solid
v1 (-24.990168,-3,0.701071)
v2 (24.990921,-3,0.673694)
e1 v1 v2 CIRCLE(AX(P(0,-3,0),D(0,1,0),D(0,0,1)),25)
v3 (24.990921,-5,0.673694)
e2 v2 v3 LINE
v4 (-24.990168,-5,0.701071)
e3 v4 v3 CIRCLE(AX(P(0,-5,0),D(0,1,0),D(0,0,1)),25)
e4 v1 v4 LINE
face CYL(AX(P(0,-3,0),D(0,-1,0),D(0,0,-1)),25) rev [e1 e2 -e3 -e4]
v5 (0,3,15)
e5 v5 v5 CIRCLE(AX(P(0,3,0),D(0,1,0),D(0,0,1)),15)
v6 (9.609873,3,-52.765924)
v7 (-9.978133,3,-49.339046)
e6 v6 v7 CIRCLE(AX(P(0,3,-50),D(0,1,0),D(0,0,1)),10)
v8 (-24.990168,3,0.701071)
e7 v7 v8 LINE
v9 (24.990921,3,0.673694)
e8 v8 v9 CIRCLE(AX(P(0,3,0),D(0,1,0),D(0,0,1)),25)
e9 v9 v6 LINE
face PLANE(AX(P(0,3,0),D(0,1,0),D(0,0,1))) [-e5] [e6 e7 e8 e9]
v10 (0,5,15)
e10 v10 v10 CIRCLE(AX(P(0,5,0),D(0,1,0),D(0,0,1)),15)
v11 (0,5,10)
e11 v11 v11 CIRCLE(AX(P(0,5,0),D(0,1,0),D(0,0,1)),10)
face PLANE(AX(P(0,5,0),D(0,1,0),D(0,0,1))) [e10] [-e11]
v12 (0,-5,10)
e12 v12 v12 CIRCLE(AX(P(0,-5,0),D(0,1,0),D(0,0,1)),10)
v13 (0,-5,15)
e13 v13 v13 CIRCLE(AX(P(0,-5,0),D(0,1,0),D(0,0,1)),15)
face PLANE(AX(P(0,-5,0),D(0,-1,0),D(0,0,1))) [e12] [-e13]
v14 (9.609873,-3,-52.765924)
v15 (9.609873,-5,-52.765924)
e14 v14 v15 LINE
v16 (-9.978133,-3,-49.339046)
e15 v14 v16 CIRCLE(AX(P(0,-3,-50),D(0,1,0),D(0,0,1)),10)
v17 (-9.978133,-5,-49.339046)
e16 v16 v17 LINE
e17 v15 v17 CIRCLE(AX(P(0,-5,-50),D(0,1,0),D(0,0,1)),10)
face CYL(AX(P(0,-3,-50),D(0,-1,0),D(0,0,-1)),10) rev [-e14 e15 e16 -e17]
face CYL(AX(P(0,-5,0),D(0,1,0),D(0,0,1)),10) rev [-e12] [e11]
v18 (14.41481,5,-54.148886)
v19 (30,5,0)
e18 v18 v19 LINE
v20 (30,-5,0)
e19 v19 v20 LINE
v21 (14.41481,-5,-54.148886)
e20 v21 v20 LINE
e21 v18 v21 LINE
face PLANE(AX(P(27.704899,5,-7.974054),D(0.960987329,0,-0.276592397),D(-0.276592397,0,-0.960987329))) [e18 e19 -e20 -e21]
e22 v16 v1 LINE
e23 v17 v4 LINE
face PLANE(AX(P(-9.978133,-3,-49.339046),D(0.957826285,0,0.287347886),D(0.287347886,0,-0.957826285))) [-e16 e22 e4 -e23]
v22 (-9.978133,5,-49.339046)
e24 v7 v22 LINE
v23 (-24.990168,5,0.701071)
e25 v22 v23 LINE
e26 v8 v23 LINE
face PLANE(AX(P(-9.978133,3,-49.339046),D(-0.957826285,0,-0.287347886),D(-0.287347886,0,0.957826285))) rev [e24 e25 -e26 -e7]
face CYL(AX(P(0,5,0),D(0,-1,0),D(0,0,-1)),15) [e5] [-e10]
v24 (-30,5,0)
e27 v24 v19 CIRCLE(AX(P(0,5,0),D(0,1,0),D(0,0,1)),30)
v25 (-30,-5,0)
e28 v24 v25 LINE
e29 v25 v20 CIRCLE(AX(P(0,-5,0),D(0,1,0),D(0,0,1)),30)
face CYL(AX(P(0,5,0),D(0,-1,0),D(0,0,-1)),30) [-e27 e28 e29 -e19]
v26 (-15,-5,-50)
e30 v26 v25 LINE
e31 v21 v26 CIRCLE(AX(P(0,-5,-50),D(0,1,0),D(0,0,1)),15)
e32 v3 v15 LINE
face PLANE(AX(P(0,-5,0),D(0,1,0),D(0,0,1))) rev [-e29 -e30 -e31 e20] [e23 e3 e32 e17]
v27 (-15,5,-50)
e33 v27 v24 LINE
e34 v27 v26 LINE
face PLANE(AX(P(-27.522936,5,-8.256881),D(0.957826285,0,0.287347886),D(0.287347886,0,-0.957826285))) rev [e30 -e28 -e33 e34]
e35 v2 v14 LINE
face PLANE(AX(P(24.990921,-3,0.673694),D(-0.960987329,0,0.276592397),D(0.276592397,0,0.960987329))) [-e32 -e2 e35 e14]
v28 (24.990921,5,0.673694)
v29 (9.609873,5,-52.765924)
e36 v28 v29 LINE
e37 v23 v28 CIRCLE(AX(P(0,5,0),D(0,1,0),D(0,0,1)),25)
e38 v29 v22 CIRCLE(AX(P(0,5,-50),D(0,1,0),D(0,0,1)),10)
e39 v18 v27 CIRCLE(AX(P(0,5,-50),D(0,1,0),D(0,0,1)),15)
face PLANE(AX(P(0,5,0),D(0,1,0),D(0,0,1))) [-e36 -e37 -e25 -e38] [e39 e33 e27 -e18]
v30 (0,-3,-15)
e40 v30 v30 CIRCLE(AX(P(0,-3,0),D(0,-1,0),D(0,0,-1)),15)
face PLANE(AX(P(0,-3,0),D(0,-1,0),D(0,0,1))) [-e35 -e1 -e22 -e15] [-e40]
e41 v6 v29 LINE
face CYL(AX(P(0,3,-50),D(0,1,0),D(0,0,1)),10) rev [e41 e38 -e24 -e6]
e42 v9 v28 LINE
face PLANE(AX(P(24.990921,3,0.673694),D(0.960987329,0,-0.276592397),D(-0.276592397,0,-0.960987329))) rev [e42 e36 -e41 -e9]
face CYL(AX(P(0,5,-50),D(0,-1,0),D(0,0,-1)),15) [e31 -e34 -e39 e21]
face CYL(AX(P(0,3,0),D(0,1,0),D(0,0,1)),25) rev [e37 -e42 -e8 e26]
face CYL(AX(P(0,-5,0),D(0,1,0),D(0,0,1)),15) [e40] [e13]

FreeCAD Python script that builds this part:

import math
import FreeCAD as App
import Part
import Sketcher

doc = App.newDocument("Part")
body = doc.addObject("PartDesign::Body", "Body")

# Sketch on XZ plane
sketch1 = body.newObject("Sketcher::SketchObject", "Sketch")
sketch1.AttachmentSupport = (doc.getObject("XZ_Plane"), [""])
sketch1.MapMode = "FlatFace"
sketch1.addGeometry(Part.ArcOfCircle(Part.Circle(App.Vector(0, -50, 0), App.Vector(0, 0, 1), 15), math.radians(180), math.radians(344)), False)
sketch1.addGeometry(Part.LineSegment(App.Vector(-15, -50, 0), App.Vector(-30, 0, 0)), False)
sketch1.addGeometry(Part.ArcOfCircle(Part.Circle(App.Vector(0, 0, 0), App.Vector(0, 0, 1), 30), math.radians(0), math.radians(180)), False)
sketch1.addGeometry(Part.LineSegment(App.Vector(30, 0, 0), App.Vector(14, -54, 0)), False)
sketch1.addConstraint(Sketcher.Constraint("Coincident", 0, 1, 1, 1))
sketch1.addConstraint(Sketcher.Constraint("Coincident", 1, 2, 2, 2))
sketch1.addConstraint(Sketcher.Constraint("Coincident", 2, 1, 3, 1))
sketch1.addConstraint(Sketcher.Constraint("Tangent", 3, 2, 0, 2))
sketch1.addConstraint(Sketcher.Constraint("Coincident", 2, 3, -1, 1))
sketch1.addConstraint(Sketcher.Constraint("PointOnObject", 0, 3, -2))
sketch1.addConstraint(Sketcher.Constraint("PointOnObject", 1, 2, -1))
sketch1.addConstraint(Sketcher.Constraint("PointOnObject", 2, 1, -1))
sketch1.addConstraint(Sketcher.Constraint("Radius", 0, 15.0))
sketch1.addConstraint(Sketcher.Constraint("Radius", 2, 30.0))
sketch1.addConstraint(Sketcher.Constraint("DistanceY", 0, 3, -1, 1, 50.0))
sketch1.addConstraint(Sketcher.Constraint("DistanceY", 0, 1, -1, 1, 50.0))
pad1 = body.newObject("PartDesign::Pad", "Pad")
pad1.Profile = sketch1
pad1.Length = 10
pad1.Midplane = True

# Sketch on XZ plane
sketch2 = body.newObject("Sketcher::SketchObject", "Sketch001")
sketch2.AttachmentSupport = (doc.getObject("XZ_Plane"), [""])
sketch2.MapMode = "FlatFace"
sketch2.AttachmentOffset = App.Placement(App.Vector(0, 0, -5), App.Rotation())
sketch2.addGeometry(Part.LineSegment(App.Vector(25, 1, 0), App.Vector(10, -53, 0)), False)
sketch2.addGeometry(Part.ArcOfCircle(Part.Circle(App.Vector(0, -50, 0), App.Vector(0, 0, 1), 10), math.radians(176), math.radians(344)), False)
sketch2.addGeometry(Part.LineSegment(App.Vector(-10, -49, 0), App.Vector(-25, 1, 0)), False)
sketch2.addGeometry(Part.ArcOfCircle(Part.Circle(App.Vector(0, 0, 0), App.Vector(0, 0, 1), 25), math.radians(2), math.radians(178)), False)
sketch2.addConstraint(Sketcher.Constraint("Tangent", 0, 2, 1, 2))
sketch2.addConstraint(Sketcher.Constraint("Coincident", 1, 1, 2, 1))
sketch2.addConstraint(Sketcher.Constraint("Coincident", 2, 2, 3, 2))
sketch2.addConstraint(Sketcher.Constraint("Coincident", 3, 1, 0, 1))
sketch2.addConstraint(Sketcher.Constraint("Coincident", 3, 3, -1, 1))
sketch2.addConstraint(Sketcher.Constraint("PointOnObject", 1, 3, -2))
sketch2.addConstraint(Sketcher.Constraint("Radius", 1, 10.0))
sketch2.addConstraint(Sketcher.Constraint("Radius", 3, 25.0))
sketch2.addConstraint(Sketcher.Constraint("DistanceY", 1, 3, -1, 1, 50.0))
sketch2.addConstraint(Sketcher.Constraint("DistanceX", 2, 2, -1, 1, 24.990168))
sketch2.addConstraint(Sketcher.Constraint("DistanceX", -1, 1, 3, 1, 24.990921))
sketch2.addConstraint(Sketcher.Constraint("DistanceY", 0, 2, 1, 1, 3.426878))
pocket1 = body.newObject("PartDesign::Pocket", "Pocket")
pocket1.Profile = sketch2
pocket1.Length = 2
pocket1.Reversed = True
doc.recompute()

mirrored = body.newObject("PartDesign::Mirrored", "Mirrored")
mirrored.Originals = [pocket1]
mirrored.MirrorPlane = (doc.getObject("XZ_Plane"), [""])
body.Tip = mirrored

# Sketch on XZ plane
sketch3 = body.newObject("Sketcher::SketchObject", "Sketch002")
sketch3.AttachmentSupport = (doc.getObject("XZ_Plane"), [""])
sketch3.MapMode = "FlatFace"
sketch3.AttachmentOffset = App.Placement(App.Vector(0, 0, -3), App.Rotation())
sketch3.addGeometry(Part.Circle(App.Vector(0, 0, 0), App.Vector(0, 0, 1), 10), False)
sketch3.addConstraint(Sketcher.Constraint("Coincident", 0, 3, -1, 1))
sketch3.addConstraint(Sketcher.Constraint("Diameter", 0, 20.0))
pocket2 = body.newObject("PartDesign::Pocket", "Pocket001")
pocket2.Profile = sketch3
pocket2.Type = "ThroughAll"
pocket2.Reversed = True

# Sketch on XZ plane
sketch4 = body.newObject("Sketcher::SketchObject", "Sketch003")
sketch4.AttachmentSupport = (doc.getObject("XZ_Plane"), [""])
sketch4.MapMode = "FlatFace"
sketch4.AttachmentOffset = App.Placement(App.Vector(0, 0, -3), App.Rotation())
sketch4.addGeometry(Part.Circle(App.Vector(0, 0, 0), App.Vector(0, 0, 1), 15), False)
sketch4.addGeometry(Part.Circle(App.Vector(0, 0, 0), App.Vector(0, 0, 1), 10), False)
sketch4.addConstraint(Sketcher.Constraint("Coincident", 0, 3, -1, 1))
sketch4.addConstraint(Sketcher.Constraint("Coincident", 1, 3, -1, 1))
sketch4.addConstraint(Sketcher.Constraint("Diameter", 0, 30.0))
sketch4.addConstraint(Sketcher.Constraint("Diameter", 1, 20.0))
pad2 = body.newObject("PartDesign::Pad", "Pad001")
pad2.Profile = sketch4
pad2.Length = 2
pad2.Reversed = True
doc.recompute()

mirrored2 = body.newObject("PartDesign::Mirrored", "Mirrored001")
mirrored2.Originals = [pad2]
mirrored2.MirrorPlane = (doc.getObject("XZ_Plane"), [""])
body.Tip = mirrored2

doc.recompute()
